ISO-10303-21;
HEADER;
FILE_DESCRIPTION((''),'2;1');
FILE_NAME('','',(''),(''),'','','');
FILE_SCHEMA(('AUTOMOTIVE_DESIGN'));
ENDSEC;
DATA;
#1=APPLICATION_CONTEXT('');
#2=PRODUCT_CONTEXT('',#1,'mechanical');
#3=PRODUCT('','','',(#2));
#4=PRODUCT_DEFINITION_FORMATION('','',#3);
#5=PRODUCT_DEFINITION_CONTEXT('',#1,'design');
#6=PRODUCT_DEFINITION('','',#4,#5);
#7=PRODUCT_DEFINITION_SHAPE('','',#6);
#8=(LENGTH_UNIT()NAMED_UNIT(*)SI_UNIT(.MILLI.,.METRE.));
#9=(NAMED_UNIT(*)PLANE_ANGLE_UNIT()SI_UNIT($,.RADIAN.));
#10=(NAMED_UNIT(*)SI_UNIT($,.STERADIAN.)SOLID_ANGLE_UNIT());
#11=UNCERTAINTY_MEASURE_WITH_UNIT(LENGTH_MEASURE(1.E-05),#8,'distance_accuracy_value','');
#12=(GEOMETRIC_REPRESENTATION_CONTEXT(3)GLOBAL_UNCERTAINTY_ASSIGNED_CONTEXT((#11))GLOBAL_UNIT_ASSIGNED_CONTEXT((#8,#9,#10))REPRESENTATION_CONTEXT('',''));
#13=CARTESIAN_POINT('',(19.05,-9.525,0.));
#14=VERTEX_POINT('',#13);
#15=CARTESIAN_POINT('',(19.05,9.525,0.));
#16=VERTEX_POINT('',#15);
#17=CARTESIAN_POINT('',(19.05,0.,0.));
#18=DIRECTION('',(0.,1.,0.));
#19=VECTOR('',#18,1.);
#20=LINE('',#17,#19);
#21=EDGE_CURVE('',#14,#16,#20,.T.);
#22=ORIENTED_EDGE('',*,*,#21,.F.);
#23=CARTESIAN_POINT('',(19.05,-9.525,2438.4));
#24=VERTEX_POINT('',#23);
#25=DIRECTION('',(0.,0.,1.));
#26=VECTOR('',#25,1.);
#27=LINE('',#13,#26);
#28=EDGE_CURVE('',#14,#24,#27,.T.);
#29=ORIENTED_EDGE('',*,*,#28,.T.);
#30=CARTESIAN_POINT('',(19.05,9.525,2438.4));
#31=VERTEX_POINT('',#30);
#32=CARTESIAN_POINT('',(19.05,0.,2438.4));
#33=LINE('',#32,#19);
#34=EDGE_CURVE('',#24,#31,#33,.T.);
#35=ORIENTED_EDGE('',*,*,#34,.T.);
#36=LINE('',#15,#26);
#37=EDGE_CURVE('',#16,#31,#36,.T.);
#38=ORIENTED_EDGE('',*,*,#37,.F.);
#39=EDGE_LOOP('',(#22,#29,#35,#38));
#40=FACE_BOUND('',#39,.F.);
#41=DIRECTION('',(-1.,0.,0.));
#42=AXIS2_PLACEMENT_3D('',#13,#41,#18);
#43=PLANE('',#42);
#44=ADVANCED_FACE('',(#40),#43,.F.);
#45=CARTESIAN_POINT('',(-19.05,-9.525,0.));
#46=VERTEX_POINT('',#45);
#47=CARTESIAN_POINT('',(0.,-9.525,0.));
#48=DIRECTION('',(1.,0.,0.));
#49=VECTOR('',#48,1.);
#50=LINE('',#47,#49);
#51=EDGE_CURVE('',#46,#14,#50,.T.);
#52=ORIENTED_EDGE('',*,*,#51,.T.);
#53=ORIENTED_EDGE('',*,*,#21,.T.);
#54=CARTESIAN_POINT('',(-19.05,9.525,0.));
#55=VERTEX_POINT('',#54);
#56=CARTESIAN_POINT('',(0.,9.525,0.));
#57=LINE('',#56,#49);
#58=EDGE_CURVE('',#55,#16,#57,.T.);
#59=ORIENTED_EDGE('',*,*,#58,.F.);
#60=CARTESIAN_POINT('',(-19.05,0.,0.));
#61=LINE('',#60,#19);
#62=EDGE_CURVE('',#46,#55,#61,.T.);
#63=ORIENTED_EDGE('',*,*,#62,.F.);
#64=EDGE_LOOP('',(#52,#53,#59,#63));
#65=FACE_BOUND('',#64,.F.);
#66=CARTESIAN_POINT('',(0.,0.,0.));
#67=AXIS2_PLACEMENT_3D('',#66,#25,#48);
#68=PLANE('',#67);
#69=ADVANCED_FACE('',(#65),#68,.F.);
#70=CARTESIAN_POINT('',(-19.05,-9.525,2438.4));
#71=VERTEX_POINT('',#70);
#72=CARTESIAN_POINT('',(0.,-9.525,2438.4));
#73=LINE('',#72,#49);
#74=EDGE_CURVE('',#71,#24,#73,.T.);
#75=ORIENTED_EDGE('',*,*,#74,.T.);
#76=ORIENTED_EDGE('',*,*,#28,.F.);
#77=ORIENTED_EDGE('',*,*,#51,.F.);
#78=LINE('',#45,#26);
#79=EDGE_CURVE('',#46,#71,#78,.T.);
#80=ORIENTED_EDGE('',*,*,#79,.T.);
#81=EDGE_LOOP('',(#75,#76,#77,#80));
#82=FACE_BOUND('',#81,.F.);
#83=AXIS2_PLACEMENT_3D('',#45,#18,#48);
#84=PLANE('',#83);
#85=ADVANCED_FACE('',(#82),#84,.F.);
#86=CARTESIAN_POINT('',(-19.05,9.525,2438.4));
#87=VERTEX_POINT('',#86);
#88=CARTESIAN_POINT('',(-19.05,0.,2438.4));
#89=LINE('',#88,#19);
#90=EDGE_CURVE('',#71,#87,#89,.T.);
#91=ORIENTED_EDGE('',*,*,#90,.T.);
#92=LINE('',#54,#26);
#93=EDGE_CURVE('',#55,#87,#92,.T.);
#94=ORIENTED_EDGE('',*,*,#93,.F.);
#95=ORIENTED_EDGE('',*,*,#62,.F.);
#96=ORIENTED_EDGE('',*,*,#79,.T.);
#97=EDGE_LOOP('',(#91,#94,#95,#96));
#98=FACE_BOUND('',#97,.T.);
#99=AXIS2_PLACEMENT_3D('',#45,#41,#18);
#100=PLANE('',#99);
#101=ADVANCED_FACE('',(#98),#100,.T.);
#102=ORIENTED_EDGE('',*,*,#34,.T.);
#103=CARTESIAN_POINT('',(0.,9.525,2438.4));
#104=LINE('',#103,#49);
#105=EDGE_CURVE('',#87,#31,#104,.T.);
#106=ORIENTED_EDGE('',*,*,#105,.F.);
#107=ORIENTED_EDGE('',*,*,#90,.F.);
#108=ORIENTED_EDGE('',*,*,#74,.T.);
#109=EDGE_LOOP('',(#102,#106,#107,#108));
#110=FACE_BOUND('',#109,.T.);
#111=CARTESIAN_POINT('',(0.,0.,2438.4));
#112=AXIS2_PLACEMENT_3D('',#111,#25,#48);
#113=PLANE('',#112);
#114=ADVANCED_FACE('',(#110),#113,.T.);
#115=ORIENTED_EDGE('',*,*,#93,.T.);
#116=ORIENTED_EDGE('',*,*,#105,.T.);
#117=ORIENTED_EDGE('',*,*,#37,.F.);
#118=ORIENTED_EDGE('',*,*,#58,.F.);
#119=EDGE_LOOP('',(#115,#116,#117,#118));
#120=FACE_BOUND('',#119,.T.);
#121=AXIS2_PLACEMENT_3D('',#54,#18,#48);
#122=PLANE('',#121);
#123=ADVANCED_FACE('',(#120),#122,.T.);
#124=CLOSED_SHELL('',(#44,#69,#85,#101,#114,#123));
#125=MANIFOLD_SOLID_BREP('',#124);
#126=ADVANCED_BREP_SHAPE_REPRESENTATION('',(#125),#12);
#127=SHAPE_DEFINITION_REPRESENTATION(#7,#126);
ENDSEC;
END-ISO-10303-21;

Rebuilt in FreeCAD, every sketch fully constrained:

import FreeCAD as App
import Part
import Sketcher

V = App.Vector
Q = App.Units.Quantity


def add_polygon(sketch, points):
    """Adds a closed chain of lines whose ends are joined by coincident constraints."""
    first, n = sketch.GeometryCount, len(points)
    for a, b in zip(points, points[1:] + points[:1]):
        sketch.addGeometry(Part.LineSegment(App.Vector(*a, 0), App.Vector(*b, 0)), False)
    for i in range(n):
        sketch.addConstraint(Sketcher.Constraint("Coincident", first + i, 2, first + (i + 1) % n, 1))

doc = App.newDocument("Part")
body = doc.addObject("PartDesign::Body", "Body")

# Sketch on XY plane
sketch1 = body.newObject("Sketcher::SketchObject", "Sketch")
sketch1.AttachmentSupport = (doc.getObject("XY_Plane"), [""])
sketch1.MapMode = "FlatFace"
add_polygon(sketch1, [(-19, 10), (-19, -10), (19, -10), (19, 10)])  # lines 0-3
sketch1.addConstraint(Sketcher.Constraint("Vertical", 0))
sketch1.addConstraint(Sketcher.Constraint("Horizontal", 1))
sketch1.addConstraint(Sketcher.Constraint("Vertical", 2))
sketch1.addConstraint(Sketcher.Constraint("Horizontal", 3))
sketch1.addConstraint(Sketcher.Constraint("Symmetric", 0, 2, 2, 2, -1, 1))
sketch1.addConstraint(Sketcher.Constraint("DistanceX", 1, 1, 1, 2, Q("1.5 in")))
sketch1.addConstraint(Sketcher.Constraint("DistanceY", 0, 2, 0, 1, Q("0.75 in")))
pad1 = body.newObject("PartDesign::Pad", "Pad")
pad1.Profile = sketch1
pad1.Length = Q("96 in")

doc.recompute()
